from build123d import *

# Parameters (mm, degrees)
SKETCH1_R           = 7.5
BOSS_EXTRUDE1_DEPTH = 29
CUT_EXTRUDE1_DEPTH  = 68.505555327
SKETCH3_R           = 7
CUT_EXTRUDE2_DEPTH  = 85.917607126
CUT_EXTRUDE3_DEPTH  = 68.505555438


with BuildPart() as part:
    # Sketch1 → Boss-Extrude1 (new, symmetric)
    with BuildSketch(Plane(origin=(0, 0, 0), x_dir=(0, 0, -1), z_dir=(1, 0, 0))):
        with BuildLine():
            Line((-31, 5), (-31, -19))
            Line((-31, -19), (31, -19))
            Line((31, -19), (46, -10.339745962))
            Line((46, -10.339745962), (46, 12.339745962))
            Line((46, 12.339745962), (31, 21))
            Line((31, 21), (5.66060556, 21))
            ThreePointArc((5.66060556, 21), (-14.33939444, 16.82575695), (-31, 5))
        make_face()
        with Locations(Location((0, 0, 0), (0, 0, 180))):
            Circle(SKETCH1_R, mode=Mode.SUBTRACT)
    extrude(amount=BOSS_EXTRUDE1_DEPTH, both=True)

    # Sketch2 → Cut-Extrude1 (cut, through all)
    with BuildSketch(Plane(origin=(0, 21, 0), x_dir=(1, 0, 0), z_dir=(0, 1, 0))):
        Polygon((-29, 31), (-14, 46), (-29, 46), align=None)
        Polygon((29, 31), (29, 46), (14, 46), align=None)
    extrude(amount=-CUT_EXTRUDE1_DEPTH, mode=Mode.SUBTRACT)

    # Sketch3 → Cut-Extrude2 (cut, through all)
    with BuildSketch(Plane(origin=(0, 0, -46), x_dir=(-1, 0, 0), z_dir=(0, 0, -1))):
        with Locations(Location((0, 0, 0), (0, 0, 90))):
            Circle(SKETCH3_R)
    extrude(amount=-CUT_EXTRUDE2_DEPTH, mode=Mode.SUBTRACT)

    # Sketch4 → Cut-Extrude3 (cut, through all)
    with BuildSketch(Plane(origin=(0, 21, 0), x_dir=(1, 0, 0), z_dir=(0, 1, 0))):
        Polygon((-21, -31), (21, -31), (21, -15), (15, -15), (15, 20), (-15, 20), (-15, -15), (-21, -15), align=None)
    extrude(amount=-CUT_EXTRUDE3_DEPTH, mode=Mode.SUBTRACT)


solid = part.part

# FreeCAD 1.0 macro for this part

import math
import FreeCAD as App
import Part
import Sketcher

V = App.Vector
Q = App.Units.Quantity


def add_polygon(sketch, points):
    """Adds a closed chain of lines whose ends are joined by coincident constraints."""
    first, n = sketch.GeometryCount, len(points)
    for a, b in zip(points, points[1:] + points[:1]):
        sketch.addGeometry(Part.LineSegment(App.Vector(*a, 0), App.Vector(*b, 0)), False)
    for i in range(n):
        sketch.addConstraint(Sketcher.Constraint("Coincident", first + i, 2, first + (i + 1) % n, 1))

doc = App.newDocument("Part")
body = doc.addObject("PartDesign::Body", "Body")

# Sketch on YZ plane
sketch1 = doc.addObject("Sketcher::SketchObject", "Sketch")
body.addObject(sketch1)
sketch1.AttachmentSupport = (doc.YZ_Plane, [""])
sketch1.MapMode = "FlatFace"
sketch1.addGeometry([
    Part.LineSegment(V(5, 31, 0), V(-19, 31, 0)),  # 0
    Part.LineSegment(V(-19, 31, 0), V(-19, -31, 0)),  # 1
    Part.LineSegment(V(-19, -31, 0), V(-10, -46, 0)),  # 2
    Part.LineSegment(V(-10, -46, 0), V(12, -46, 0)),  # 3
    Part.LineSegment(V(12, -46, 0), V(21, -31, 0)),  # 4
    Part.LineSegment(V(21, -31, 0), V(21, -6, 0)),  # 5
    Part.ArcOfCircle(Part.Circle(V(-29, -6, 0), V(0, 0, 1), 50), math.radians(0), math.radians(47)),  # 6
    Part.Circle(V(0, 0, 0), V(0, 0, 1), 8),  # 7
], False)
sketch1.addConstraint([
    Sketcher.Constraint("Coincident", 0, 2, 1, 1),
    Sketcher.Constraint("Coincident", 1, 2, 2, 1),
    Sketcher.Constraint("Coincident", 2, 2, 3, 1),
    Sketcher.Constraint("Coincident", 3, 2, 4, 1),
    Sketcher.Constraint("Coincident", 4, 2, 5, 1),
    Sketcher.Constraint("Tangent", 5, 2, 6, 1),
    Sketcher.Constraint("Coincident", 6, 2, 0, 1),
    Sketcher.Constraint("Horizontal", 0),
    Sketcher.Constraint("Vertical", 1),
    Sketcher.Constraint("Horizontal", 3),
    Sketcher.Constraint("Vertical", 5),
    Sketcher.Constraint("Coincident", 7, 3, -1, 1),
    Sketcher.Constraint("Horizontal", 1, 2, 4, 2),
    Sketcher.Constraint("Equal", 2, 4),
    Sketcher.Constraint("Diameter", 7, 15.0),
    Sketcher.Constraint("Radius", 6, 50.0),
    Sketcher.Constraint("DistanceX", 0, 2, 0, 1, 24.0),
    Sketcher.Constraint("DistanceY", 1, 2, 1, 1, 62.0),
    Sketcher.Constraint("Angle", 2, Q("-60 deg")),
    Sketcher.Constraint("DistanceX", 6, 3, -1, 1, 29.0),
    Sketcher.Constraint("DistanceX", 0, 2, -1, 1, 19.0),
    Sketcher.Constraint("DistanceY", -1, 1, 0, 2, 31.0),
    Sketcher.Constraint("DistanceY", 2, 2, -1, 1, 46.0),
])
pad1 = doc.addObject("PartDesign::Pad", "Pad")
body.addObject(pad1)
pad1.Profile = sketch1
pad1.Length = 58
pad1.Midplane = True

# Sketch on XZ plane
sketch2 = doc.addObject("Sketcher::SketchObject", "Sketch001")
body.addObject(sketch2)
sketch2.AttachmentSupport = (doc.XZ_Plane, [""])
sketch2.MapMode = "FlatFace"
sketch2.AttachmentOffset = App.Placement(V(0, 0, -21), App.Rotation())
add_polygon(sketch2, [(-29, -31), (-14, -46), (-29, -46)])  # lines 0-2
add_polygon(sketch2, [(29, -31), (29, -46), (14, -46)])  # lines 3-5
sketch2.addConstraint([
    Sketcher.Constraint("Horizontal", 1),
    Sketcher.Constraint("Vertical", 2),
    Sketcher.Constraint("Vertical", 3),
    Sketcher.Constraint("Horizontal", 4),
    Sketcher.Constraint("Symmetric", 1, 2, 3, 2, -2),
    Sketcher.Constraint("Perpendicular", 0, 5),
    Sketcher.Constraint("Horizontal", 2, 2, 5, 2),
    Sketcher.Constraint("Equal", 1, 4),
    Sketcher.Constraint("DistanceX", 1, 2, 1, 1, 15.0),
    Sketcher.Constraint("DistanceX", 0, 2, -1, 1, 14.0),
    Sketcher.Constraint("DistanceY", 0, 2, -1, 1, 46.0),
])
pocket1 = doc.addObject("PartDesign::Pocket", "Pocket")
body.addObject(pocket1)
pocket1.Profile = sketch2
pocket1.Type = "ThroughAll"
pocket1.Reversed = True

# Sketch on XY plane
sketch3 = doc.addObject("Sketcher::SketchObject", "Sketch002")
body.addObject(sketch3)
sketch3.AttachmentSupport = (doc.XY_Plane, [""])
sketch3.MapMode = "FlatFace"
sketch3.AttachmentOffset = App.Placement(V(0, 0, -46), App.Rotation())
sketch3.addGeometry(Part.Circle(V(0, 0, 0), V(0, 0, 1), 7), False)
sketch3.addConstraint([
    Sketcher.Constraint("Coincident", 0, 3, -1, 1),
    Sketcher.Constraint("Diameter", 0, 14.0),
])
pocket2 = doc.addObject("PartDesign::Pocket", "Pocket001")
body.addObject(pocket2)
pocket2.Profile = sketch3
pocket2.Type = "ThroughAll"
pocket2.Reversed = True

# Sketch on XZ plane
sketch4 = doc.addObject("Sketcher::SketchObject", "Sketch003")
body.addObject(sketch4)
sketch4.AttachmentSupport = (doc.XZ_Plane, [""])
sketch4.MapMode = "FlatFace"
sketch4.AttachmentOffset = App.Placement(V(0, 0, -21), App.Rotation())
add_polygon(sketch4, [(-21, 31), (21, 31), (21, 15), (15, 15), (15, -20), (-15, -20), (-15, 15), (-21, 15)])  # lines 0-7
sketch4.addConstraint([
    Sketcher.Constraint("Horizontal", 0),
    Sketcher.Constraint("Vertical", 1),
    Sketcher.Constraint("Horizontal", 2),
    Sketcher.Constraint("Vertical", 3),
    Sketcher.Constraint("Horizontal", 4),
    Sketcher.Constraint("Vertical", 5),
    Sketcher.Constraint("Horizontal", 6),
    Sketcher.Constraint("Vertical", 7),
    Sketcher.Constraint("Symmetric", 2, 2, 5, 2, -2),
    Sketcher.Constraint("Equal", 2, 6),
    Sketcher.Constraint("DistanceX", 0, 1, 0, 2, 42.0),
    Sketcher.Constraint("DistanceX", 2, 2, 2, 1, 6.0),
    Sketcher.Constraint("DistanceY", 1, 2, 1, 1, 16.0),
    Sketcher.Constraint("DistanceY", 3, 2, 3, 1, 35.0),
    Sketcher.Constraint("DistanceY", -1, 1, 0, 2, 31.0),
])
pocket3 = doc.addObject("PartDesign::Pocket", "Pocket002")
body.addObject(pocket3)
pocket3.Profile = sketch4
pocket3.Type = "ThroughAll"
pocket3.Reversed = True

doc.recompute()
